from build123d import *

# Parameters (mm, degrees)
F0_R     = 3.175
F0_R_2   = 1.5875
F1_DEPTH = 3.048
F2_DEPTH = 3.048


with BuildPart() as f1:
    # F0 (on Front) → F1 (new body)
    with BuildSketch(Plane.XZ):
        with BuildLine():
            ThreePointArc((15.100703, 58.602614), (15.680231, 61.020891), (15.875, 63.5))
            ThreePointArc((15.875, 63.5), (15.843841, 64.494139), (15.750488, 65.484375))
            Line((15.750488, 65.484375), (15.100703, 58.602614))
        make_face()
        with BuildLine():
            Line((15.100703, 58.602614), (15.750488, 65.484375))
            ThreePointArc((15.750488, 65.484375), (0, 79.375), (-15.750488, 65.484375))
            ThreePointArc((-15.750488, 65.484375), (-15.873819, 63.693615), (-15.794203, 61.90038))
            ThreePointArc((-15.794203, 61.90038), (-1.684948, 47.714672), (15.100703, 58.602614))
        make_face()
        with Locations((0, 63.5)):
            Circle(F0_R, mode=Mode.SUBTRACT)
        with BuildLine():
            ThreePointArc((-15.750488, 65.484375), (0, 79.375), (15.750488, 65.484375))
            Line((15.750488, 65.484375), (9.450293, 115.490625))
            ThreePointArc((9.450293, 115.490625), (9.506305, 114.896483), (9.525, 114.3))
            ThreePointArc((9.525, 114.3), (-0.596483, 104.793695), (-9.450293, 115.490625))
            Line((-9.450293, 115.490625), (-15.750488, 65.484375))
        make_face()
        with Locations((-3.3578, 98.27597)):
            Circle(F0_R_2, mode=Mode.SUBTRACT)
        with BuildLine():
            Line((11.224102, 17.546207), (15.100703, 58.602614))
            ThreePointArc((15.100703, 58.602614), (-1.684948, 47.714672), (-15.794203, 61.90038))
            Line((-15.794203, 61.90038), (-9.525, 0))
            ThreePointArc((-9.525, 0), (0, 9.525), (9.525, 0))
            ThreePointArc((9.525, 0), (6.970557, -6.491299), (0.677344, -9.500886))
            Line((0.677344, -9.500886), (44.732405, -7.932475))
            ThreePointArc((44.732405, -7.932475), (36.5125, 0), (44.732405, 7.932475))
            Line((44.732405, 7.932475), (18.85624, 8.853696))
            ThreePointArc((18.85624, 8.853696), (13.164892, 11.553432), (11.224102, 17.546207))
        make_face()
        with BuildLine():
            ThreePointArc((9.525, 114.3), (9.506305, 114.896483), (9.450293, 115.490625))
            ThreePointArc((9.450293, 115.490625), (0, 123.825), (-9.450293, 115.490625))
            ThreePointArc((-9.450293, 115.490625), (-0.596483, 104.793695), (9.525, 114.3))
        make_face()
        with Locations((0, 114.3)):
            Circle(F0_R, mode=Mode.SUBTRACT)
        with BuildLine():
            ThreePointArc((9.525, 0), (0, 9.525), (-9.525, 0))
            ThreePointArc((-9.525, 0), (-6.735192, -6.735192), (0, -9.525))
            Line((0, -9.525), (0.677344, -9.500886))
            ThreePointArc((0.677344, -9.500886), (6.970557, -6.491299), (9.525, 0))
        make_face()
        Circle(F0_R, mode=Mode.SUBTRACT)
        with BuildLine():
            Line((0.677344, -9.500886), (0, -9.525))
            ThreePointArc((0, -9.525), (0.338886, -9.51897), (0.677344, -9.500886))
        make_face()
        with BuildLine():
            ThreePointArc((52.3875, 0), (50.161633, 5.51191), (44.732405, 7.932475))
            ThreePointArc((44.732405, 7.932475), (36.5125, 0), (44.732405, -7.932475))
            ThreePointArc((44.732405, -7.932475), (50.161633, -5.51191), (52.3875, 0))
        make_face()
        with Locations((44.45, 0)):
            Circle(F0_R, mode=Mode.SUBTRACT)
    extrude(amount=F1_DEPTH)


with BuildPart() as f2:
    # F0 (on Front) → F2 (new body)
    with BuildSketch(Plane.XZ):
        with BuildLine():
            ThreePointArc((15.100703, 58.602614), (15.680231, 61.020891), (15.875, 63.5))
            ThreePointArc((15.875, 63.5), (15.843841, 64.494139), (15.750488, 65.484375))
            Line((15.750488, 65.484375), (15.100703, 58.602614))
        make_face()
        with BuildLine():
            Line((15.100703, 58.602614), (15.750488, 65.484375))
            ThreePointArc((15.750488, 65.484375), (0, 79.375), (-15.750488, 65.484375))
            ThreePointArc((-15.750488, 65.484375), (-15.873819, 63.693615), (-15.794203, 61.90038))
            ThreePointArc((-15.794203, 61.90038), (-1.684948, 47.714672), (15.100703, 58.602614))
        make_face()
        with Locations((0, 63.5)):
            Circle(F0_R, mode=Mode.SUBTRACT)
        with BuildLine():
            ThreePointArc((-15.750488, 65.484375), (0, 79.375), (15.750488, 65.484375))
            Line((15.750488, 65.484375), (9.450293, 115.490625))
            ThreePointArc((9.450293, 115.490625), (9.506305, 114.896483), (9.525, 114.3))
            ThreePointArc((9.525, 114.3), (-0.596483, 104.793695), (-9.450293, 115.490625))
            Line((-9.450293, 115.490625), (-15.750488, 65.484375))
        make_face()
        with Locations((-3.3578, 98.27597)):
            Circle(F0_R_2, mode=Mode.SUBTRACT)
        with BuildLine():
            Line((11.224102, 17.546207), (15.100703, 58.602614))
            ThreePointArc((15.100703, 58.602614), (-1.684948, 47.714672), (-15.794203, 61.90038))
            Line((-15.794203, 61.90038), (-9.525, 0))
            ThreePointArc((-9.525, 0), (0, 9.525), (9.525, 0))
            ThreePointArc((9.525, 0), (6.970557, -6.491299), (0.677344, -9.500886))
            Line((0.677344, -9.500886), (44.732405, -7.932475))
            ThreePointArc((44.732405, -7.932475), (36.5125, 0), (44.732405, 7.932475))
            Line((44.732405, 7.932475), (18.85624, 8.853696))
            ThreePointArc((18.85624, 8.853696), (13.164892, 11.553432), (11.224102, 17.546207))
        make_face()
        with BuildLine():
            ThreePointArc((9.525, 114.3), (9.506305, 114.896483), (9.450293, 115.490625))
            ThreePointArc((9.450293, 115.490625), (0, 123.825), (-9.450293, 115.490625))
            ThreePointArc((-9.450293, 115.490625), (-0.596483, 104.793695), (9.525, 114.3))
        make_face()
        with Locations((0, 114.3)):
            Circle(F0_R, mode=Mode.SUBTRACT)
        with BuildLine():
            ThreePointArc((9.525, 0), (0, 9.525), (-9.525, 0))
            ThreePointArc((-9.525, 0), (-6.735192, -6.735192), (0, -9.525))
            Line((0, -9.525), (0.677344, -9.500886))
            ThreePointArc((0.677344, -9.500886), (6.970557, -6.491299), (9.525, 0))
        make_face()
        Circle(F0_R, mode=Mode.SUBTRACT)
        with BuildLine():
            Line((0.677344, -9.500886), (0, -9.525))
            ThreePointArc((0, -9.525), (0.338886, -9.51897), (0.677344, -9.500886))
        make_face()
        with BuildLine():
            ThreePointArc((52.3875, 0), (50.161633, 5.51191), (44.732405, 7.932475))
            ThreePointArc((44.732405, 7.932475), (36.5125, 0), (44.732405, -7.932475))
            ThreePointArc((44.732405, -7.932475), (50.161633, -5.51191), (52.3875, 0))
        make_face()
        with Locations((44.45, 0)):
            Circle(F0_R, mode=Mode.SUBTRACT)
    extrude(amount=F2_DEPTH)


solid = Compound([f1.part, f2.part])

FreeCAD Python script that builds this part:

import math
import FreeCAD as App
import Part
import Sketcher

V = App.Vector
Q = App.Units.Quantity

doc = App.newDocument("Part")
body = doc.addObject("PartDesign::Body", "Body")

# Sketch on XZ plane
sketch1 = body.newObject("Sketcher::SketchObject", "Sketch")
sketch1.AttachmentSupport = (doc.getObject("XZ_Plane"), [""])
sketch1.MapMode = "FlatFace"
sketch1.addGeometry([
    Part.ArcOfCircle(Part.Circle(V(0.000007, 63.499999, 0), V(0, 0, 1), 15.874993), math.radians(-17.968667), math.radians(0.000002)),  # 0
    Part.ArcOfCircle(Part.Circle(V(-0.000171, 63.499987, 0), V(0, 0, 1), 15.875171), math.radians(0.000047), math.radians(7.180725)),  # 1
    Part.LineSegment(V(15.750488, 65.484375, 0), V(9.450293, 115.490625, 0)),  # 2
    Part.ArcOfCircle(Part.Circle(V(0, 114.3, 0), V(0, 0, 1), 9.525), math.radians(7.180756), math.radians(172.819244)),  # 3
    Part.LineSegment(V(-9.450293, 115.490625, 0), V(-15.750488, 65.484375, 0)),  # 4
    Part.ArcOfCircle(Part.Circle(V(0.00004, 63.499997, 0), V(0, 0, 1), 15.875039), math.radians(172.819252), math.radians(185.783112)),  # 5
    Part.LineSegment(V(-15.794203, 61.90038, 0), V(-9.525, 0, 0)),  # 6
    Part.ArcOfCircle(Part.Circle(V(0, 0, 0), V(0, 0, 1), 9.525), math.radians(-179.999998), math.radians(-90.000002)),  # 7
    Part.ArcOfCircle(Part.Circle(V(0.000022, -0.000517, 0), V(0, 0, 1), 9.524483), math.radians(-90.000132), math.radians(-85.922038)),  # 8
    Part.LineSegment(V(0.677344, -9.500886, 0), V(44.732405, -7.932475, 0)),  # 9
    Part.ArcOfCircle(Part.Circle(V(44.449999, 0.000001, 0), V(0, 0, 1), 7.937501), math.radians(-87.961059), math.radians(-0.000005)),  # 10
    Part.ArcOfCircle(Part.Circle(V(44.449999, -0.000001, 0), V(0, 0, 1), 7.937501), math.radians(0.000005), math.radians(87.961059)),  # 11
    Part.LineSegment(V(44.732405, 7.932475, 0), V(18.85624, 8.853696, 0)),  # 12
    Part.ArcOfCircle(Part.Circle(V(19.139098, 16.798863, 0), V(0, 0, 1), 7.950201), math.radians(174.606053), math.radians(267.961056)),  # 13
    Part.LineSegment(V(11.224102, 17.546207, 0), V(15.100703, 58.602614, 0)),  # 14
    Part.Circle(V(0, 0, 0), V(0, 0, 1), 3.175),  # 15
    Part.Circle(V(44.45, 0, 0), V(0, 0, 1), 3.175),  # 16
    Part.Circle(V(0, 63.5, 0), V(0, 0, 1), 3.175),  # 17
    Part.Circle(V(-3.3578, 98.27597, 0), V(0, 0, 1), 1.5875),  # 18
    Part.Circle(V(0, 114.3, 0), V(0, 0, 1), 3.175),  # 19
], False)
sketch1.addConstraint([
    Sketcher.Constraint("Coincident", 0, 2, 1, 1),
    Sketcher.Constraint("Coincident", 1, 2, 2, 1),
    Sketcher.Constraint("Coincident", 2, 2, 3, 1),
    Sketcher.Constraint("Coincident", 3, 2, 4, 1),
    Sketcher.Constraint("Coincident", 4, 2, 5, 1),
    Sketcher.Constraint("Coincident", 5, 2, 6, 1),
    Sketcher.Constraint("Coincident", 6, 2, 7, 1),
    Sketcher.Constraint("Coincident", 7, 2, 8, 1),
    Sketcher.Constraint("Coincident", 8, 2, 9, 1),
    Sketcher.Constraint("Coincident", 9, 2, 10, 1),
    Sketcher.Constraint("Coincident", 10, 2, 11, 1),
    Sketcher.Constraint("Coincident", 11, 2, 12, 1),
    Sketcher.Constraint("Coincident", 12, 2, 13, 2),
    Sketcher.Constraint("Coincident", 13, 1, 14, 1),
    Sketcher.Constraint("Coincident", 14, 2, 0, 1),
    Sketcher.Constraint("Coincident", 7, 3, -1, 1),
    Sketcher.Constraint("Coincident", 15, 3, -1, 1),
    Sketcher.Constraint("Coincident", 11, 3, 10, 3),
    Sketcher.Constraint("Coincident", 16, 3, 10, 3),
    Sketcher.Constraint("Coincident", 17, 3, 0, 3),
    Sketcher.Constraint("Coincident", 19, 3, 3, 3),
    Sketcher.Constraint("PointOnObject", 3, 3, -2),
    Sketcher.Constraint("PointOnObject", 10, 3, -1),
    Sketcher.Constraint("PointOnObject", 17, 3, -2),
    Sketcher.Constraint("PointOnObject", 6, 2, -1),
    Sketcher.Constraint("PointOnObject", 7, 2, -2),
    Sketcher.Constraint("PointOnObject", 10, 2, -1),
    Sketcher.Constraint("Diameter", 15, Q("0.25 in")),
    Sketcher.Constraint("Diameter", 16, Q("0.25 in")),
    Sketcher.Constraint("Diameter", 17, Q("0.25 in")),
    Sketcher.Constraint("Diameter", 19, Q("0.25 in")),
    Sketcher.Constraint("Diameter", 18, Q("0.125 in")),
    Sketcher.Constraint("Radius", 3, Q("0.375 in")),
    Sketcher.Constraint("Radius", 7, Q("0.375 in")),
    Sketcher.Constraint("Radius", 10, Q("0.3125 in")),
    Sketcher.Constraint("Radius", 13, Q("0.313 in")),
    Sketcher.Constraint("DistanceY", 0, 3, 3, 3, Q("2 in")),
    Sketcher.Constraint("DistanceY", 5, 3, 3, 3, Q("2.0000001 in")),
    Sketcher.Constraint("DistanceY", -1, 1, 0, 3, Q("2.5 in")),
    Sketcher.Constraint("DistanceY", -1, 1, 0, 2, Q("2.5 in")),
    Sketcher.Constraint("DistanceX", -1, 1, 10, 3, Q("1.75 in")),
    Sketcher.Constraint("DistanceX", -1, 1, 0, 2, Q("0.625 in")),
    Sketcher.Constraint("DistanceY", -1, 1, 1, 2, Q("2.578125 in")),
    Sketcher.Constraint("DistanceY", -1, 1, 2, 2, Q("4.546875 in")),
    Sketcher.Constraint("DistanceY", -1, 1, 3, 2, Q("4.546875 in")),
    Sketcher.Constraint("DistanceY", -1, 1, 4, 2, Q("2.578125 in")),
    Sketcher.Constraint("Radius", 1, Q("15.875171 mm")),
    Sketcher.Constraint("Radius", 5, Q("15.875039 mm")),
    Sketcher.Constraint("Radius", 8, Q("9.524483 mm")),
    Sketcher.Constraint("DistanceX", -1, 1, 13, 3, Q("19.139098 mm")),
    Sketcher.Constraint("DistanceX", 18, 3, -1, 1, Q("3.3578 mm")),
    Sketcher.Constraint("DistanceX", 7, 3, 13, 1, Q("11.224102 mm")),
    Sketcher.Constraint("Distance", 6, Q("62.217039 mm")),
    Sketcher.Constraint("Distance", 9, Q("44.082971 mm")),
    Sketcher.Constraint("Distance", 12, Q("25.892558 mm")),
    Sketcher.Constraint("DistanceY", -1, 1, 18, 3, Q("98.27597 mm")),
    Sketcher.Constraint("DistanceX", -1, 1, 1, 2, Q("15.750488 mm")),
    Sketcher.Constraint("DistanceX", 4, 2, -1, 1, Q("15.750488 mm")),
    Sketcher.Constraint("DistanceX", -1, 1, 12, 2, Q("18.85624 mm")),
    Sketcher.Constraint("DistanceY", 8, 3, 13, 3, Q("16.79938 mm")),
    Sketcher.Constraint("DistanceX", 8, 3, 16, 3, Q("44.449978 mm")),
    Sketcher.Constraint("DistanceY", 8, 2, 8, 3, Q("9.500369 mm")),
    Sketcher.Constraint("DistanceY", 14, 2, 1, 2, Q("6.881761 mm")),
])
pad1 = body.newObject("PartDesign::Pad", "Pad")
pad1.Profile = sketch1
pad1.Length = Q("0.12 in")
body2 = doc.addObject("PartDesign::Body", "Body001")

# Sketch on XZ plane
sketch2 = body2.newObject("Sketcher::SketchObject", "Sketch001")
sketch2.AttachmentSupport = (doc.getObject("XZ_Plane001"), [""])
sketch2.MapMode = "FlatFace"
sketch2.addGeometry([
    Part.ArcOfCircle(Part.Circle(V(0.000007, 63.499999, 0), V(0, 0, 1), 15.874993), math.radians(-17.968667), math.radians(0.000002)),  # 0
    Part.ArcOfCircle(Part.Circle(V(-0.000171, 63.499987, 0), V(0, 0, 1), 15.875171), math.radians(0.000047), math.radians(7.180725)),  # 1
    Part.LineSegment(V(15.750488, 65.484375, 0), V(9.450293, 115.490625, 0)),  # 2
    Part.ArcOfCircle(Part.Circle(V(0, 114.3, 0), V(0, 0, 1), 9.525), math.radians(7.180756), math.radians(172.819244)),  # 3
    Part.LineSegment(V(-9.450293, 115.490625, 0), V(-15.750488, 65.484375, 0)),  # 4
    Part.ArcOfCircle(Part.Circle(V(0.00004, 63.499997, 0), V(0, 0, 1), 15.875039), math.radians(172.819252), math.radians(185.783112)),  # 5
    Part.LineSegment(V(-15.794203, 61.90038, 0), V(-9.525, 0, 0)),  # 6
    Part.ArcOfCircle(Part.Circle(V(0, 0, 0), V(0, 0, 1), 9.525), math.radians(-179.999998), math.radians(-90.000002)),  # 7
    Part.ArcOfCircle(Part.Circle(V(0.000022, -0.000517, 0), V(0, 0, 1), 9.524483), math.radians(-90.000132), math.radians(-85.922038)),  # 8
    Part.LineSegment(V(0.677344, -9.500886, 0), V(44.732405, -7.932475, 0)),  # 9
    Part.ArcOfCircle(Part.Circle(V(44.449999, 0.000001, 0), V(0, 0, 1), 7.937501), math.radians(-87.961059), math.radians(-0.000005)),  # 10
    Part.ArcOfCircle(Part.Circle(V(44.449999, -0.000001, 0), V(0, 0, 1), 7.937501), math.radians(0.000005), math.radians(87.961059)),  # 11
    Part.LineSegment(V(44.732405, 7.932475, 0), V(18.85624, 8.853696, 0)),  # 12
    Part.ArcOfCircle(Part.Circle(V(19.139098, 16.798863, 0), V(0, 0, 1), 7.950201), math.radians(174.606053), math.radians(267.961056)),  # 13
    Part.LineSegment(V(11.224102, 17.546207, 0), V(15.100703, 58.602614, 0)),  # 14
    Part.Circle(V(0, 0, 0), V(0, 0, 1), 3.175),  # 15
    Part.Circle(V(44.45, 0, 0), V(0, 0, 1), 3.175),  # 16
    Part.Circle(V(0, 63.5, 0), V(0, 0, 1), 3.175),  # 17
    Part.Circle(V(-3.3578, 98.27597, 0), V(0, 0, 1), 1.5875),  # 18
    Part.Circle(V(0, 114.3, 0), V(0, 0, 1), 3.175),  # 19
], False)
sketch2.addConstraint([
    Sketcher.Constraint("Coincident", 0, 2, 1, 1),
    Sketcher.Constraint("Coincident", 1, 2, 2, 1),
    Sketcher.Constraint("Coincident", 2, 2, 3, 1),
    Sketcher.Constraint("Coincident", 3, 2, 4, 1),
    Sketcher.Constraint("Coincident", 4, 2, 5, 1),
    Sketcher.Constraint("Coincident", 5, 2, 6, 1),
    Sketcher.Constraint("Coincident", 6, 2, 7, 1),
    Sketcher.Constraint("Coincident", 7, 2, 8, 1),
    Sketcher.Constraint("Coincident", 8, 2, 9, 1),
    Sketcher.Constraint("Coincident", 9, 2, 10, 1),
    Sketcher.Constraint("Coincident", 10, 2, 11, 1),
    Sketcher.Constraint("Coincident", 11, 2, 12, 1),
    Sketcher.Constraint("Coincident", 12, 2, 13, 2),
    Sketcher.Constraint("Coincident", 13, 1, 14, 1),
    Sketcher.Constraint("Coincident", 14, 2, 0, 1),
    Sketcher.Constraint("Coincident", 7, 3, -1, 1),
    Sketcher.Constraint("Coincident", 15, 3, -1, 1),
    Sketcher.Constraint("Coincident", 11, 3, 10, 3),
    Sketcher.Constraint("Coincident", 16, 3, 10, 3),
    Sketcher.Constraint("Coincident", 17, 3, 0, 3),
    Sketcher.Constraint("Coincident", 19, 3, 3, 3),
    Sketcher.Constraint("PointOnObject", 3, 3, -2),
    Sketcher.Constraint("PointOnObject", 10, 3, -1),
    Sketcher.Constraint("PointOnObject", 17, 3, -2),
    Sketcher.Constraint("PointOnObject", 6, 2, -1),
    Sketcher.Constraint("PointOnObject", 7, 2, -2),
    Sketcher.Constraint("PointOnObject", 10, 2, -1),
    Sketcher.Constraint("Diameter", 15, Q("0.25 in")),
    Sketcher.Constraint("Diameter", 16, Q("0.25 in")),
    Sketcher.Constraint("Diameter", 17, Q("0.25 in")),
    Sketcher.Constraint("Diameter", 19, Q("0.25 in")),
    Sketcher.Constraint("Diameter", 18, Q("0.125 in")),
    Sketcher.Constraint("Radius", 3, Q("0.375 in")),
    Sketcher.Constraint("Radius", 7, Q("0.375 in")),
    Sketcher.Constraint("Radius", 10, Q("0.3125 in")),
    Sketcher.Constraint("Radius", 13, Q("0.313 in")),
    Sketcher.Constraint("DistanceY", 0, 3, 3, 3, Q("2 in")),
    Sketcher.Constraint("DistanceY", 5, 3, 3, 3, Q("2.0000001 in")),
    Sketcher.Constraint("DistanceY", -1, 1, 0, 3, Q("2.5 in")),
    Sketcher.Constraint("DistanceY", -1, 1, 0, 2, Q("2.5 in")),
    Sketcher.Constraint("DistanceX", -1, 1, 10, 3, Q("1.75 in")),
    Sketcher.Constraint("DistanceX", -1, 1, 0, 2, Q("0.625 in")),
    Sketcher.Constraint("DistanceY", -1, 1, 1, 2, Q("2.578125 in")),
    Sketcher.Constraint("DistanceY", -1, 1, 2, 2, Q("4.546875 in")),
    Sketcher.Constraint("DistanceY", -1, 1, 3, 2, Q("4.546875 in")),
    Sketcher.Constraint("DistanceY", -1, 1, 4, 2, Q("2.578125 in")),
    Sketcher.Constraint("Radius", 1, Q("15.875171 mm")),
    Sketcher.Constraint("Radius", 5, Q("15.875039 mm")),
    Sketcher.Constraint("Radius", 8, Q("9.524483 mm")),
    Sketcher.Constraint("DistanceX", -1, 1, 13, 3, Q("19.139098 mm")),
    Sketcher.Constraint("DistanceX", 18, 3, -1, 1, Q("3.3578 mm")),
    Sketcher.Constraint("DistanceX", 7, 3, 13, 1, Q("11.224102 mm")),
    Sketcher.Constraint("Distance", 6, Q("62.217039 mm")),
    Sketcher.Constraint("Distance", 9, Q("44.082971 mm")),
    Sketcher.Constraint("Distance", 12, Q("25.892558 mm")),
    Sketcher.Constraint("DistanceY", -1, 1, 18, 3, Q("98.27597 mm")),
    Sketcher.Constraint("DistanceX", -1, 1, 1, 2, Q("15.750488 mm")),
    Sketcher.Constraint("DistanceX", 4, 2, -1, 1, Q("15.750488 mm")),
    Sketcher.Constraint("DistanceX", -1, 1, 12, 2, Q("18.85624 mm")),
    Sketcher.Constraint("DistanceY", 8, 3, 13, 3, Q("16.79938 mm")),
    Sketcher.Constraint("DistanceX", 8, 3, 16, 3, Q("44.449978 mm")),
    Sketcher.Constraint("DistanceY", 8, 2, 8, 3, Q("9.500369 mm")),
    Sketcher.Constraint("DistanceY", 14, 2, 1, 2, Q("6.881761 mm")),
])
pad2 = body2.newObject("PartDesign::Pad", "Pad001")
pad2.Profile = sketch2
pad2.Length = Q("0.12 in")

doc.recompute()
